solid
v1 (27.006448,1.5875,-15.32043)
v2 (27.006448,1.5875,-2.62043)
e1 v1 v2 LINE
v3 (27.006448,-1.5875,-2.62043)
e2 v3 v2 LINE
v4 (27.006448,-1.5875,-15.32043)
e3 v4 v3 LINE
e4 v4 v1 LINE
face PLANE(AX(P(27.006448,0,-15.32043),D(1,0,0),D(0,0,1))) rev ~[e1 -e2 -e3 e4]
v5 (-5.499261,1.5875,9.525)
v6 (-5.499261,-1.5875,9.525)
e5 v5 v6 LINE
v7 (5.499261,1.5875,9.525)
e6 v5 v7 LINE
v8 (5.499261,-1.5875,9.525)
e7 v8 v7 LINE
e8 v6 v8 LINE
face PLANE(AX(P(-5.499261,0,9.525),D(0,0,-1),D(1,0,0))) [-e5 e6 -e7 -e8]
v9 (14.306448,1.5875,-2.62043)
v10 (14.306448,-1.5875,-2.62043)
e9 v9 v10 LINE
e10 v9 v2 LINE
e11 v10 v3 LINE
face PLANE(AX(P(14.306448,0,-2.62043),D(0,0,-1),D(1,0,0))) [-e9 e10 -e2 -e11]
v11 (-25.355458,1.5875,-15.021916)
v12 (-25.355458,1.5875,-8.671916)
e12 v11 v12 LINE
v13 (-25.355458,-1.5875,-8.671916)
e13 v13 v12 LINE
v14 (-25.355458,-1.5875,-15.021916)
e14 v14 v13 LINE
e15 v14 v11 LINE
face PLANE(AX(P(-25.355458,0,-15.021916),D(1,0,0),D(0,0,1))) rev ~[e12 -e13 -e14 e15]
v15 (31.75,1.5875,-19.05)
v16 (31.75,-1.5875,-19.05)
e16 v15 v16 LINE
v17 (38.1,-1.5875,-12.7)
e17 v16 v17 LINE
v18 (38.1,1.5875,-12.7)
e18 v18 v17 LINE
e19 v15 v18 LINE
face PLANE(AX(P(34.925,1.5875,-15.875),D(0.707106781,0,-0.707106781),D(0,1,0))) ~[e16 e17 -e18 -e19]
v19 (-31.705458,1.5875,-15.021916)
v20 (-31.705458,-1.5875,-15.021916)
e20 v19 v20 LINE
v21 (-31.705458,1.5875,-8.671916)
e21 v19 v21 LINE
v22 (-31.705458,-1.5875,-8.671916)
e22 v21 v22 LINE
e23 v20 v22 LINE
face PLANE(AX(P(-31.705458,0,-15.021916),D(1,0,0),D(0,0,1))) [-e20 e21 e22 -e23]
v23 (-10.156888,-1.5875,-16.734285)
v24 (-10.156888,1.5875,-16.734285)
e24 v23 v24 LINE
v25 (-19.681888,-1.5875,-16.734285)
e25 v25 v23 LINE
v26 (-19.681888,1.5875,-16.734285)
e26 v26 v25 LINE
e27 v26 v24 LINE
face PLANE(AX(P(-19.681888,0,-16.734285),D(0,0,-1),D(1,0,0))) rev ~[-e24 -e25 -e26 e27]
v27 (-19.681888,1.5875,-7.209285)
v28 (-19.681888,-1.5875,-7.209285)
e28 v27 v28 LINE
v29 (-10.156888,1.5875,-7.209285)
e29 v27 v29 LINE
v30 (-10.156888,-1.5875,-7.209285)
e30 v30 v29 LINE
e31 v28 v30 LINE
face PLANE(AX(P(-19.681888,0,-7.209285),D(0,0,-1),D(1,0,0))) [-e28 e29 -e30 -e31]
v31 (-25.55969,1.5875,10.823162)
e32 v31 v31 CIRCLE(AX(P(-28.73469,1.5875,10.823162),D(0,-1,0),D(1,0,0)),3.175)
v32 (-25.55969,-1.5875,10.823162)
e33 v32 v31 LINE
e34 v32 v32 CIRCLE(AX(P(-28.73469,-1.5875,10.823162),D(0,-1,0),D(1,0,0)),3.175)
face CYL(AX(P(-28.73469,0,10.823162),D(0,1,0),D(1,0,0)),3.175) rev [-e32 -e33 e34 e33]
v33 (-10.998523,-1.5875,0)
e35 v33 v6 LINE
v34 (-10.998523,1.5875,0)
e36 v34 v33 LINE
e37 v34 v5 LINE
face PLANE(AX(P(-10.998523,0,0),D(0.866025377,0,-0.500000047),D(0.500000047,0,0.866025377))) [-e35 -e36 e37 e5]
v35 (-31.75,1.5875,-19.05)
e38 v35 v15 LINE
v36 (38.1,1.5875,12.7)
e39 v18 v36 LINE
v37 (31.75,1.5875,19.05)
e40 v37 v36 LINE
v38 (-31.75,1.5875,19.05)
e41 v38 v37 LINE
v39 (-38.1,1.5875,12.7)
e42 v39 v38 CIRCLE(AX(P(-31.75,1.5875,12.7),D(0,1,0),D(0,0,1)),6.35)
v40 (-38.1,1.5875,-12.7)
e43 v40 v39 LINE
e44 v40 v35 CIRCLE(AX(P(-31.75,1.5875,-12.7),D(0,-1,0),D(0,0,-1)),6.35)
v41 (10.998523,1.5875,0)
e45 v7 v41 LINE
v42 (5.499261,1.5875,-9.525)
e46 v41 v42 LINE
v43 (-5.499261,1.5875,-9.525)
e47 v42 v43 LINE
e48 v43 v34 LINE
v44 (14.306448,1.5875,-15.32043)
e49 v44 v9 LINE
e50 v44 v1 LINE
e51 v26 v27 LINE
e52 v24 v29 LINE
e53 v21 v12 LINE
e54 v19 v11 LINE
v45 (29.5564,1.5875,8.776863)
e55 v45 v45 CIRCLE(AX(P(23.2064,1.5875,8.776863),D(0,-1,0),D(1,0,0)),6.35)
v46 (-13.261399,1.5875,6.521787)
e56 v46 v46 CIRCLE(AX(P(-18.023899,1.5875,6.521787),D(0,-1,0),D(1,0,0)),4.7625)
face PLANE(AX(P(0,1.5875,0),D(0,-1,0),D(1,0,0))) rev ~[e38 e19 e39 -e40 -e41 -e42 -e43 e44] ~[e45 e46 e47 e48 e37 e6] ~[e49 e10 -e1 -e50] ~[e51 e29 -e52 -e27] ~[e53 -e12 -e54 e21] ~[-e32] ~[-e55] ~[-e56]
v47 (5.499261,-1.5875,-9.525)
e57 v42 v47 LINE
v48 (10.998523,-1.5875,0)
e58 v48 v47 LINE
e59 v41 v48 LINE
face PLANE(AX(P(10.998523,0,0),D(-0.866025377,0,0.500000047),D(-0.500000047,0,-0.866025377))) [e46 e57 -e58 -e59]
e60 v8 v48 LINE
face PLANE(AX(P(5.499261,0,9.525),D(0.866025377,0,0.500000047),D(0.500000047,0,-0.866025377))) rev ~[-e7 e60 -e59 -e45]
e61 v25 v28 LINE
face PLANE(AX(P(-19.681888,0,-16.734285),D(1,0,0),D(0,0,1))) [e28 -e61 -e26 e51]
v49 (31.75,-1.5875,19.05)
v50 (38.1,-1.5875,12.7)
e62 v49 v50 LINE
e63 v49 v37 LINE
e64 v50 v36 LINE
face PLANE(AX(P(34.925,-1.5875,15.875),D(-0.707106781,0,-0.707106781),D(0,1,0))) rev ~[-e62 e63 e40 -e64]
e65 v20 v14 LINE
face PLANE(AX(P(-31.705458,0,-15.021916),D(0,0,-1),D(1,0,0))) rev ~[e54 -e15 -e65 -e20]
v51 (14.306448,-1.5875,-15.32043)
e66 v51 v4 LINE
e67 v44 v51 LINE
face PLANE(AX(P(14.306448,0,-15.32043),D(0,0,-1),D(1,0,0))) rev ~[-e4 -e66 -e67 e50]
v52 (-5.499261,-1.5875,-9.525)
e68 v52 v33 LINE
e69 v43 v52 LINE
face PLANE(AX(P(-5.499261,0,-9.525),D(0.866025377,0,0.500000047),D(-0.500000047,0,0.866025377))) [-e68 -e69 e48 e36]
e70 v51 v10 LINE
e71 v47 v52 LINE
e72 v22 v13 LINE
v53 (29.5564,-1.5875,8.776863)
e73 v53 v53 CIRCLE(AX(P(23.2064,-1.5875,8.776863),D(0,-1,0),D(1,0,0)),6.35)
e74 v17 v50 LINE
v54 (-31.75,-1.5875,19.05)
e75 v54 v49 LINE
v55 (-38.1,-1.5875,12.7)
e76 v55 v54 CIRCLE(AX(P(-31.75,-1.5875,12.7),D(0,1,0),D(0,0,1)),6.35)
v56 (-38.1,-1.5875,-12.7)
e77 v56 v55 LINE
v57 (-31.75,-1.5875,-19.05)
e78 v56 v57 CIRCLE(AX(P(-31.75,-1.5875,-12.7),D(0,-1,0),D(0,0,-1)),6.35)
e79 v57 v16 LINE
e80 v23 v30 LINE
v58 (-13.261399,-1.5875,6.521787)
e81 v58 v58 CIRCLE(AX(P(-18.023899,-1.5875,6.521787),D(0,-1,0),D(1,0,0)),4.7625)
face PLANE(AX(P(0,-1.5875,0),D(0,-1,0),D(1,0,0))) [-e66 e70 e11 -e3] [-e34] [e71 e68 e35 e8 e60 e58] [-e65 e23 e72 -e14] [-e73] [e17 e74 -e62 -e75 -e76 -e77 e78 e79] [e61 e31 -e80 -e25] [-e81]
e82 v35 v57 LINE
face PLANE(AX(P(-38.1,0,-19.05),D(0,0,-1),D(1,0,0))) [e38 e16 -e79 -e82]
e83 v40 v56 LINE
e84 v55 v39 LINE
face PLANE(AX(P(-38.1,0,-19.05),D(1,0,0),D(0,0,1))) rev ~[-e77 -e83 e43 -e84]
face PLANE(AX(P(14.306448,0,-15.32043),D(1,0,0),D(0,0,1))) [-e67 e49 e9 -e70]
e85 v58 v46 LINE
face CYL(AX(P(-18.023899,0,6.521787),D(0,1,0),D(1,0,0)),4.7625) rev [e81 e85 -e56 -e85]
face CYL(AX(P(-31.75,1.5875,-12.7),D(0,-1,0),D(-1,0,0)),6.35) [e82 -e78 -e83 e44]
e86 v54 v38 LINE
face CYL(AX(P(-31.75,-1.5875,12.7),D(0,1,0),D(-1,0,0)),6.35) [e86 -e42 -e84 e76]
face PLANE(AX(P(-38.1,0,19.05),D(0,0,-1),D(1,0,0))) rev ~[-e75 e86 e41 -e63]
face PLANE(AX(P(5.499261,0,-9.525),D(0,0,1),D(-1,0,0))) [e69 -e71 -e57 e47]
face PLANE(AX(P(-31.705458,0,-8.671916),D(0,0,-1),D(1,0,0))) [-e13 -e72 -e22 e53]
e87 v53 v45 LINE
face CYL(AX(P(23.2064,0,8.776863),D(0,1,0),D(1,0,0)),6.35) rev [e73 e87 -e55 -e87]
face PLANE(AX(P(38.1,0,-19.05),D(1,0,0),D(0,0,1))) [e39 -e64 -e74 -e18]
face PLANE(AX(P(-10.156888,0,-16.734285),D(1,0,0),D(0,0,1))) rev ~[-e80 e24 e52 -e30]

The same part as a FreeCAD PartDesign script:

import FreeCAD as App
import Part
import Sketcher

V = App.Vector
Q = App.Units.Quantity


def edges_at(feature, points):
    """Names of the edges that pass closest to the given points."""
    edges = feature.Shape.Edges
    near = lambda p: min(range(len(edges)), key=lambda i: edges[i].distToShape(Part.Vertex(*p))[0])
    return sorted({f"Edge{near(p) + 1}" for p in points})


def add_polygon(sketch, points):
    """Adds a closed chain of lines whose ends are joined by coincident constraints."""
    first, n = sketch.GeometryCount, len(points)
    for a, b in zip(points, points[1:] + points[:1]):
        sketch.addGeometry(Part.LineSegment(App.Vector(*a, 0), App.Vector(*b, 0)), False)
    for i in range(n):
        sketch.addConstraint(Sketcher.Constraint("Coincident", first + i, 2, first + (i + 1) % n, 1))

doc = App.newDocument("Part")
body = doc.addObject("PartDesign::Body", "Body")

sketch1 = doc.addObject("Sketcher::SketchObject", "Sketch")
body.addObject(sketch1)
sketch1.AttachmentSupport = (doc.XZ_Plane, [""])
sketch1.MapMode = "FlatFace"
add_polygon(sketch1, [(-38.1, 19.1), (-38.1, -19.1), (38.1, -19.1), (38.1, 19.1)])
add_polygon(sketch1, [(-25.4, -15), (-31.7, -15), (-31.7, -8.7), (-25.4, -8.7)])
add_polygon(sketch1, [(-10.2, -16.7), (-19.7, -16.7), (-19.7, -7.2), (-10.2, -7.2)])
add_polygon(sketch1, [(27, -15.3), (14.3, -15.3), (14.3, -2.6), (27, -2.6)])
sketch1.addGeometry(Part.Circle(V(-18, 6.5, 0), V(0, 0, 1), 4.8), False)
sketch1.addGeometry(Part.Circle(V(-28.7, 10.8, 0), V(0, 0, 1), 3.2), False)
add_polygon(sketch1, [(-5.5, -9.5), (-11, 0), (-5.5, 9.5), (5.5, 9.5), (11, 0), (5.5, -9.5)])
sketch1.addGeometry(Part.Circle(V(23.2, 8.8, 0), V(0, 0, 1), 6.3), False)
sketch1.addConstraint(Sketcher.Constraint("Vertical", 0))
sketch1.addConstraint(Sketcher.Constraint("Horizontal", 1))
sketch1.addConstraint(Sketcher.Constraint("Vertical", 2))
sketch1.addConstraint(Sketcher.Constraint("Horizontal", 3))
sketch1.addConstraint(Sketcher.Constraint("Horizontal", 4))
sketch1.addConstraint(Sketcher.Constraint("Vertical", 5))
sketch1.addConstraint(Sketcher.Constraint("Horizontal", 6))
sketch1.addConstraint(Sketcher.Constraint("Vertical", 7))
sketch1.addConstraint(Sketcher.Constraint("Horizontal", 8))
sketch1.addConstraint(Sketcher.Constraint("Vertical", 9))
sketch1.addConstraint(Sketcher.Constraint("Horizontal", 10))
sketch1.addConstraint(Sketcher.Constraint("Vertical", 11))
sketch1.addConstraint(Sketcher.Constraint("Horizontal", 12))
sketch1.addConstraint(Sketcher.Constraint("Vertical", 13))
sketch1.addConstraint(Sketcher.Constraint("Horizontal", 14))
sketch1.addConstraint(Sketcher.Constraint("Vertical", 15))
sketch1.addConstraint(Sketcher.Constraint("Horizontal", 20))
sketch1.addConstraint(Sketcher.Constraint("Horizontal", 23))
sketch1.addConstraint(Sketcher.Constraint("Symmetric", 0, 2, 2, 2, -1, 1))
sketch1.addConstraint(Sketcher.Constraint("Symmetric", 18, 2, 21, 2, -1, 1))
sketch1.addConstraint(Sketcher.Constraint("Symmetric", 19, 2, 22, 2, -1, 1))
sketch1.addConstraint(Sketcher.Constraint("PointOnObject", 18, 2, -1))
sketch1.addConstraint(Sketcher.Constraint("Parallel", 18, 21))
sketch1.addConstraint(Sketcher.Constraint("Vertical", 20, 2, 22, 2))
sketch1.addConstraint(Sketcher.Constraint("Equal", 6, 5))
sketch1.addConstraint(Sketcher.Constraint("Equal", 10, 9))
sketch1.addConstraint(Sketcher.Constraint("Equal", 14, 13))
sketch1.addConstraint(Sketcher.Constraint("Diameter", 24, Q("0.5 in")))
sketch1.addConstraint(Sketcher.Constraint("Diameter", 17, Q("0.25 in")))
sketch1.addConstraint(Sketcher.Constraint("DistanceX", 1, 1, 1, 2, Q("3 in")))
sketch1.addConstraint(Sketcher.Constraint("Diameter", 16, Q("0.375 in")))
sketch1.addConstraint(Sketcher.Constraint("DistanceX", 12, 2, 12, 1, Q("0.5 in")))
sketch1.addConstraint(Sketcher.Constraint("DistanceY", 0, 2, 0, 1, Q("1.5 in")))
sketch1.addConstraint(Sketcher.Constraint("Angle", 18, Q("120.000003 deg")))
sketch1.addConstraint(Sketcher.Constraint("DistanceX", 4, 2, 4, 1, Q("0.25 in")))
sketch1.addConstraint(Sketcher.Constraint("DistanceX", 8, 2, 8, 1, Q("0.375 in")))
sketch1.addConstraint(Sketcher.Constraint("DistanceY", -1, 1, 19, 2, Q("0.375 in")))
sketch1.addConstraint(Sketcher.Constraint("DistanceX", 16, 3, -1, 1, 18.023899))
sketch1.addConstraint(Sketcher.Constraint("DistanceX", -1, 1, 24, 3, 23.2064))
sketch1.addConstraint(Sketcher.Constraint("DistanceY", 24, 3, 17, 3, 2.046299))
sketch1.addConstraint(Sketcher.Constraint("DistanceX", 20, 1, 20, 2, 10.998522))
sketch1.addConstraint(Sketcher.Constraint("DistanceX", 17, 3, -1, 1, 28.73469))
sketch1.addConstraint(Sketcher.Constraint("DistanceX", 4, 2, -1, 1, 31.705458))
sketch1.addConstraint(Sketcher.Constraint("DistanceX", 8, 2, -1, 1, 19.681888))
sketch1.addConstraint(Sketcher.Constraint("DistanceY", 12, 2, -1, 1, 15.32043))
sketch1.addConstraint(Sketcher.Constraint("DistanceY", 17, 3, 2, 2, 8.226838))
sketch1.addConstraint(Sketcher.Constraint("DistanceY", 4, 2, 17, 3, 25.845078))
sketch1.addConstraint(Sketcher.Constraint("DistanceY", 8, 2, 7, 2, 1.712369))
sketch1.addConstraint(Sketcher.Constraint("DistanceX", 12, 2, 24, 3, 8.899952))
sketch1.addConstraint(Sketcher.Constraint("DistanceY", -1, 1, 16, 3, 6.521787))
pad1 = doc.addObject("PartDesign::Pad", "Pad")
body.addObject(pad1)
pad1.Profile = sketch1
pad1.Length = Q("0.125 in")
pad1.Midplane = True
doc.recompute()

fillet = doc.addObject("PartDesign::Fillet", "Fillet")
body.addObject(fillet)
fillet.Base = (pad1, edges_at(pad1, [(-38.1, 0, 19.05), (-38.1, 0, -19.05)]))
fillet.Radius = Q("0.25 in")
doc.recompute()

chamfer = doc.addObject("PartDesign::Chamfer", "Chamfer")
body.addObject(chamfer)
chamfer.Base = (fillet, edges_at(fillet, [(38.1, 0, 19.05), (38.1, 0, -19.05)]))
chamfer.Size = Q("0.25 in")

doc.recompute()
